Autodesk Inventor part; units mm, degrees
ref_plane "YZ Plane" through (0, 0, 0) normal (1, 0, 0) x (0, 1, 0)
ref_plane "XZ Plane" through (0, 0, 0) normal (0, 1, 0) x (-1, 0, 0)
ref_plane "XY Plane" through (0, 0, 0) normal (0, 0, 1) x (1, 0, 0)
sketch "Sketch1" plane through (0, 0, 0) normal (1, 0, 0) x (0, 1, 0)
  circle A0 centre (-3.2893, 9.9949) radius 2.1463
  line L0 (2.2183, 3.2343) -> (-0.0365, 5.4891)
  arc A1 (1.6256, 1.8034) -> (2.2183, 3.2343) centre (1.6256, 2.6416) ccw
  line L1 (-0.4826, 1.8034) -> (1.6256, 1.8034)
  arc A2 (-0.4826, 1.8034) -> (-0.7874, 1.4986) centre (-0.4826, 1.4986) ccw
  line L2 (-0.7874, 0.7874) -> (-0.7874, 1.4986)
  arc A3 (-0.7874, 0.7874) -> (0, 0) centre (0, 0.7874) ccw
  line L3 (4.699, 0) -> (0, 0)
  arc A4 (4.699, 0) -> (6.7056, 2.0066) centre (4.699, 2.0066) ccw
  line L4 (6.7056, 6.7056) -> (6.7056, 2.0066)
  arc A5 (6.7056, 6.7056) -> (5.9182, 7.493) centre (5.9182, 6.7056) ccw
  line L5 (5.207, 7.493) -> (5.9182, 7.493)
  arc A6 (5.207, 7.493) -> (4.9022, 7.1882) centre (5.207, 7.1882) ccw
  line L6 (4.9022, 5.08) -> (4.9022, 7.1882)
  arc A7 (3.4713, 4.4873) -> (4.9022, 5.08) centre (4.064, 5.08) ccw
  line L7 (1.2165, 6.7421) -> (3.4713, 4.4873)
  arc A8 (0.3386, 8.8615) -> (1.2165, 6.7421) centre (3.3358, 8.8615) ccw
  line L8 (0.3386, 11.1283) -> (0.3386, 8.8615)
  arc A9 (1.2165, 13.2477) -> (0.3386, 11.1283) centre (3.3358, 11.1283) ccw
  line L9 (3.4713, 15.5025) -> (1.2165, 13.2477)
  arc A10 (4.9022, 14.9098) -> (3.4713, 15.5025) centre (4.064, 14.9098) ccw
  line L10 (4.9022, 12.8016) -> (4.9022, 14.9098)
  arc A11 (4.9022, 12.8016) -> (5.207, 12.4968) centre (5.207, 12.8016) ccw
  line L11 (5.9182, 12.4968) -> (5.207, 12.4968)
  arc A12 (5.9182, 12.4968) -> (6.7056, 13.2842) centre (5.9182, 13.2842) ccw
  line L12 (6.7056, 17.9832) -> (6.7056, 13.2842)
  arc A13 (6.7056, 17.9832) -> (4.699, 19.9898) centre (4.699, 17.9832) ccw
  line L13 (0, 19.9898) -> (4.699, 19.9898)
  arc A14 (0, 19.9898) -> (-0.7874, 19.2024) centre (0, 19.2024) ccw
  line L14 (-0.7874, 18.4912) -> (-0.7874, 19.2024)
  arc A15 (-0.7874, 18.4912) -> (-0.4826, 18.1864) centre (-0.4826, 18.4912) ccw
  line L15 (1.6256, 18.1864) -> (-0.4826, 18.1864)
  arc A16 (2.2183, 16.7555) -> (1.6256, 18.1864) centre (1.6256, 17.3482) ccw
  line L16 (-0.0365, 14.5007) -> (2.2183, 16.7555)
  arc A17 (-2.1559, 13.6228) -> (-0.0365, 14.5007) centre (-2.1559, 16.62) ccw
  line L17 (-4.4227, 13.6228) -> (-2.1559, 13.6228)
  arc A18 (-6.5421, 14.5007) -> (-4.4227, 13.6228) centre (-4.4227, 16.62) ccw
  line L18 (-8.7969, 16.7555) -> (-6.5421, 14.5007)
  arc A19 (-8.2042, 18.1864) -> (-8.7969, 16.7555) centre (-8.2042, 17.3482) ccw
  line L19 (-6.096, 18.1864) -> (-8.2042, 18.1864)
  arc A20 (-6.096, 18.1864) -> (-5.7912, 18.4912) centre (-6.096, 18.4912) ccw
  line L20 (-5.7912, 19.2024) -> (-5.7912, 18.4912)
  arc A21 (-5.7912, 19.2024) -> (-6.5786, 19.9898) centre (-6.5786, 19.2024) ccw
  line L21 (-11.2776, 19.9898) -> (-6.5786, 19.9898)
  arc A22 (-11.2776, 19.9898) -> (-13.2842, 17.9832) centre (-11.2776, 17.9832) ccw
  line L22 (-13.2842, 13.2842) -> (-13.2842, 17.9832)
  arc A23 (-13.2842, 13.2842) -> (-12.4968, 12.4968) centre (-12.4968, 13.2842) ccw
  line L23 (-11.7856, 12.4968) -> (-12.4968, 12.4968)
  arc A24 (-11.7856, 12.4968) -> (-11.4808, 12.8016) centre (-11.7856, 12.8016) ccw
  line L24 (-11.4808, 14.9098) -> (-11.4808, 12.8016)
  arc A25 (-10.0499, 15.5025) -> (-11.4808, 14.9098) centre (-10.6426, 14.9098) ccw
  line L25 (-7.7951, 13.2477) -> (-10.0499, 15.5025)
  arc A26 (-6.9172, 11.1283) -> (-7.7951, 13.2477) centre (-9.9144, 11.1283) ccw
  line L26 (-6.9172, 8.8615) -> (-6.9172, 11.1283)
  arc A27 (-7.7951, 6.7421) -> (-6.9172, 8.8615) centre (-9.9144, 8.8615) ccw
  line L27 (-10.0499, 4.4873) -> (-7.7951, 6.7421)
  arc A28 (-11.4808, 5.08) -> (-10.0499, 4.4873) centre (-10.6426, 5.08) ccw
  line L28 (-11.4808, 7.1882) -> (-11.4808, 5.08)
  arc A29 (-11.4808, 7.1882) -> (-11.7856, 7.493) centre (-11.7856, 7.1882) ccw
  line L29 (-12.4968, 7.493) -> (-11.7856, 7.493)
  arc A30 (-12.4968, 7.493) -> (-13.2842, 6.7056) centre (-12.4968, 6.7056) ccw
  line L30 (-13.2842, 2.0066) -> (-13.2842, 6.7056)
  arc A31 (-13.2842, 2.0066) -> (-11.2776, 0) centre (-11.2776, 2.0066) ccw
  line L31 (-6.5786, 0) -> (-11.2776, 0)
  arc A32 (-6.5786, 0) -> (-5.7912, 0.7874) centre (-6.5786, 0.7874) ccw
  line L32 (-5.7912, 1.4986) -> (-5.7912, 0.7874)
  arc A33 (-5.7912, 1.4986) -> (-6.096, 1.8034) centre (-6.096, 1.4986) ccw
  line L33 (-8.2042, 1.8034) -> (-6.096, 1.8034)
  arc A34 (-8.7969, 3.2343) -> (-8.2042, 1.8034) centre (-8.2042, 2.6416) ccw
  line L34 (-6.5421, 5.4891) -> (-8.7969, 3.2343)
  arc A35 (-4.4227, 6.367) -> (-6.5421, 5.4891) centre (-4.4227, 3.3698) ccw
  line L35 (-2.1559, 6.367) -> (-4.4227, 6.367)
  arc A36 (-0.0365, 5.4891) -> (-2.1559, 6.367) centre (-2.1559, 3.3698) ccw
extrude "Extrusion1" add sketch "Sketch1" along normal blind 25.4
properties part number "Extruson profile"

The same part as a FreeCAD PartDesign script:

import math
import FreeCAD as App
import Part
import Sketcher
Q = App.Units.Quantity

doc = App.newDocument("Part")
body = doc.addObject("PartDesign::Body", "Body")

sketch1 = body.newObject("Sketcher::SketchObject", "Sketch")
sketch1.AttachmentSupport = (doc.getObject("YZ_Plane"), [""])
sketch1.MapMode = "FlatFace"
sketch1.addGeometry(Part.LineSegment(App.Vector(-0.04, 5.49, 0), App.Vector(2.22, 3.23, 0)), False)
sketch1.addGeometry(Part.ArcOfCircle(Part.Circle(App.Vector(1.63, 2.64, 0), App.Vector(0, 0, 1), 0.84), math.radians(-90), math.radians(45)), False)
sketch1.addGeometry(Part.LineSegment(App.Vector(1.63, 1.8, 0), App.Vector(-0.48, 1.8, 0)), False)
sketch1.addGeometry(Part.ArcOfCircle(Part.Circle(App.Vector(-0.48, 1.5, 0), App.Vector(0, 0, 1), 0.3), math.radians(90), math.radians(180)), False)
sketch1.addGeometry(Part.LineSegment(App.Vector(-0.79, 1.5, 0), App.Vector(-0.79, 0.79, 0)), False)
sketch1.addGeometry(Part.ArcOfCircle(Part.Circle(App.Vector(0, 0.79, 0), App.Vector(0, 0, 1), 0.79), math.radians(180), math.radians(270)), False)
sketch1.addGeometry(Part.LineSegment(App.Vector(0, 0, 0), App.Vector(4.7, 0, 0)), False)
sketch1.addGeometry(Part.ArcOfCircle(Part.Circle(App.Vector(4.7, 2.01, 0), App.Vector(0, 0, 1), 2.01), math.radians(-90), math.radians(0)), False)
sketch1.addGeometry(Part.LineSegment(App.Vector(6.71, 2.01, 0), App.Vector(6.71, 6.71, 0)), False)
sketch1.addGeometry(Part.ArcOfCircle(Part.Circle(App.Vector(5.92, 6.71, 0), App.Vector(0, 0, 1), 0.79), math.radians(0), math.radians(90)), False)
sketch1.addGeometry(Part.LineSegment(App.Vector(5.92, 7.49, 0), App.Vector(5.21, 7.49, 0)), False)
sketch1.addGeometry(Part.ArcOfCircle(Part.Circle(App.Vector(5.21, 7.19, 0), App.Vector(0, 0, 1), 0.3), math.radians(90), math.radians(180)), False)
sketch1.addGeometry(Part.LineSegment(App.Vector(4.9, 7.19, 0), App.Vector(4.9, 5.08, 0)), False)
sketch1.addGeometry(Part.ArcOfCircle(Part.Circle(App.Vector(4.06, 5.08, 0), App.Vector(0, 0, 1), 0.84), math.radians(-135), math.radians(0)), False)
sketch1.addGeometry(Part.LineSegment(App.Vector(3.47, 4.49, 0), App.Vector(1.22, 6.74, 0)), False)
sketch1.addGeometry(Part.ArcOfCircle(Part.Circle(App.Vector(3.34, 8.86, 0), App.Vector(0, 0, 1), 3), math.radians(180), math.radians(225)), False)
sketch1.addGeometry(Part.LineSegment(App.Vector(0.34, 8.86, 0), App.Vector(0.34, 11.13, 0)), False)
sketch1.addGeometry(Part.ArcOfCircle(Part.Circle(App.Vector(3.34, 11.13, 0), App.Vector(0, 0, 1), 3), math.radians(135), math.radians(180)), False)
sketch1.addGeometry(Part.LineSegment(App.Vector(1.22, 13.25, 0), App.Vector(3.47, 15.5, 0)), False)
sketch1.addGeometry(Part.ArcOfCircle(Part.Circle(App.Vector(4.06, 14.91, 0), App.Vector(0, 0, 1), 0.84), math.radians(0), math.radians(135)), False)
sketch1.addGeometry(Part.LineSegment(App.Vector(4.9, 14.91, 0), App.Vector(4.9, 12.8, 0)), False)
sketch1.addGeometry(Part.ArcOfCircle(Part.Circle(App.Vector(5.21, 12.8, 0), App.Vector(0, 0, 1), 0.3), math.radians(180), math.radians(270)), False)
sketch1.addGeometry(Part.LineSegment(App.Vector(5.21, 12.5, 0), App.Vector(5.92, 12.5, 0)), False)
sketch1.addGeometry(Part.ArcOfCircle(Part.Circle(App.Vector(5.92, 13.28, 0), App.Vector(0, 0, 1), 0.79), math.radians(-90), math.radians(0)), False)
sketch1.addGeometry(Part.LineSegment(App.Vector(6.71, 13.28, 0), App.Vector(6.71, 17.98, 0)), False)
sketch1.addGeometry(Part.ArcOfCircle(Part.Circle(App.Vector(4.7, 17.98, 0), App.Vector(0, 0, 1), 2.01), math.radians(0), math.radians(90)), False)
sketch1.addGeometry(Part.LineSegment(App.Vector(4.7, 19.99, 0), App.Vector(0, 19.99, 0)), False)
sketch1.addGeometry(Part.ArcOfCircle(Part.Circle(App.Vector(0, 19.2, 0), App.Vector(0, 0, 1), 0.79), math.radians(90), math.radians(180)), False)
sketch1.addGeometry(Part.LineSegment(App.Vector(-0.79, 19.2, 0), App.Vector(-0.79, 18.49, 0)), False)
sketch1.addGeometry(Part.ArcOfCircle(Part.Circle(App.Vector(-0.48, 18.49, 0), App.Vector(0, 0, 1), 0.3), math.radians(180), math.radians(270)), False)
sketch1.addGeometry(Part.LineSegment(App.Vector(-0.48, 18.19, 0), App.Vector(1.63, 18.19, 0)), False)
sketch1.addGeometry(Part.ArcOfCircle(Part.Circle(App.Vector(1.63, 17.35, 0), App.Vector(0, 0, 1), 0.84), math.radians(-45), math.radians(90)), False)
sketch1.addGeometry(Part.LineSegment(App.Vector(2.22, 16.76, 0), App.Vector(-0.04, 14.5, 0)), False)
sketch1.addGeometry(Part.ArcOfCircle(Part.Circle(App.Vector(-2.16, 16.62, 0), App.Vector(0, 0, 1), 3), math.radians(-90), math.radians(-45)), False)
sketch1.addGeometry(Part.LineSegment(App.Vector(-2.16, 13.62, 0), App.Vector(-4.42, 13.62, 0)), False)
sketch1.addGeometry(Part.ArcOfCircle(Part.Circle(App.Vector(-4.42, 16.62, 0), App.Vector(0, 0, 1), 3), math.radians(-135), math.radians(-90)), False)
sketch1.addGeometry(Part.LineSegment(App.Vector(-6.54, 14.5, 0), App.Vector(-8.8, 16.76, 0)), False)
sketch1.addGeometry(Part.ArcOfCircle(Part.Circle(App.Vector(-8.2, 17.35, 0), App.Vector(0, 0, 1), 0.84), math.radians(90), math.radians(225)), False)
sketch1.addGeometry(Part.LineSegment(App.Vector(-8.2, 18.19, 0), App.Vector(-6.1, 18.19, 0)), False)
sketch1.addGeometry(Part.ArcOfCircle(Part.Circle(App.Vector(-6.1, 18.49, 0), App.Vector(0, 0, 1), 0.3), math.radians(-90), math.radians(0)), False)
sketch1.addGeometry(Part.LineSegment(App.Vector(-5.79, 18.49, 0), App.Vector(-5.79, 19.2, 0)), False)
sketch1.addGeometry(Part.ArcOfCircle(Part.Circle(App.Vector(-6.58, 19.2, 0), App.Vector(0, 0, 1), 0.79), math.radians(0), math.radians(90)), False)
sketch1.addGeometry(Part.LineSegment(App.Vector(-6.58, 19.99, 0), App.Vector(-11.28, 19.99, 0)), False)
sketch1.addGeometry(Part.ArcOfCircle(Part.Circle(App.Vector(-11.28, 17.98, 0), App.Vector(0, 0, 1), 2.01), math.radians(90), math.radians(180)), False)
sketch1.addGeometry(Part.LineSegment(App.Vector(-13.28, 17.98, 0), App.Vector(-13.28, 13.28, 0)), False)
sketch1.addGeometry(Part.ArcOfCircle(Part.Circle(App.Vector(-12.5, 13.28, 0), App.Vector(0, 0, 1), 0.79), math.radians(180), math.radians(270)), False)
sketch1.addGeometry(Part.LineSegment(App.Vector(-12.5, 12.5, 0), App.Vector(-11.79, 12.5, 0)), False)
sketch1.addGeometry(Part.ArcOfCircle(Part.Circle(App.Vector(-11.79, 12.8, 0), App.Vector(0, 0, 1), 0.3), math.radians(-90), math.radians(0)), False)
sketch1.addGeometry(Part.LineSegment(App.Vector(-11.48, 12.8, 0), App.Vector(-11.48, 14.91, 0)), False)
sketch1.addGeometry(Part.ArcOfCircle(Part.Circle(App.Vector(-10.64, 14.91, 0), App.Vector(0, 0, 1), 0.84), math.radians(45), math.radians(180)), False)
sketch1.addGeometry(Part.LineSegment(App.Vector(-10.05, 15.5, 0), App.Vector(-7.8, 13.25, 0)), False)
sketch1.addGeometry(Part.ArcOfCircle(Part.Circle(App.Vector(-9.91, 11.13, 0), App.Vector(0, 0, 1), 3), math.radians(0), math.radians(45)), False)
sketch1.addGeometry(Part.LineSegment(App.Vector(-6.92, 11.13, 0), App.Vector(-6.92, 8.86, 0)), False)
sketch1.addGeometry(Part.ArcOfCircle(Part.Circle(App.Vector(-9.91, 8.86, 0), App.Vector(0, 0, 1), 3), math.radians(-45), math.radians(0)), False)
sketch1.addGeometry(Part.LineSegment(App.Vector(-7.8, 6.74, 0), App.Vector(-10.05, 4.49, 0)), False)
sketch1.addGeometry(Part.ArcOfCircle(Part.Circle(App.Vector(-10.64, 5.08, 0), App.Vector(0, 0, 1), 0.84), math.radians(180), math.radians(315)), False)
sketch1.addGeometry(Part.LineSegment(App.Vector(-11.48, 5.08, 0), App.Vector(-11.48, 7.19, 0)), False)
sketch1.addGeometry(Part.ArcOfCircle(Part.Circle(App.Vector(-11.79, 7.19, 0), App.Vector(0, 0, 1), 0.3), math.radians(0), math.radians(90)), False)
sketch1.addGeometry(Part.LineSegment(App.Vector(-11.79, 7.49, 0), App.Vector(-12.5, 7.49, 0)), False)
sketch1.addGeometry(Part.ArcOfCircle(Part.Circle(App.Vector(-12.5, 6.71, 0), App.Vector(0, 0, 1), 0.79), math.radians(90), math.radians(180)), False)
sketch1.addGeometry(Part.LineSegment(App.Vector(-13.28, 6.71, 0), App.Vector(-13.28, 2.01, 0)), False)
sketch1.addGeometry(Part.ArcOfCircle(Part.Circle(App.Vector(-11.28, 2.01, 0), App.Vector(0, 0, 1), 2.01), math.radians(180), math.radians(270)), False)
sketch1.addGeometry(Part.LineSegment(App.Vector(-11.28, 0, 0), App.Vector(-6.58, 0, 0)), False)
sketch1.addGeometry(Part.ArcOfCircle(Part.Circle(App.Vector(-6.58, 0.79, 0), App.Vector(0, 0, 1), 0.79), math.radians(-90), math.radians(0)), False)
sketch1.addGeometry(Part.LineSegment(App.Vector(-5.79, 0.79, 0), App.Vector(-5.79, 1.5, 0)), False)
sketch1.addGeometry(Part.ArcOfCircle(Part.Circle(App.Vector(-6.1, 1.5, 0), App.Vector(0, 0, 1), 0.3), math.radians(0), math.radians(90)), False)
sketch1.addGeometry(Part.LineSegment(App.Vector(-6.1, 1.8, 0), App.Vector(-8.2, 1.8, 0)), False)
sketch1.addGeometry(Part.ArcOfCircle(Part.Circle(App.Vector(-8.2, 2.64, 0), App.Vector(0, 0, 1), 0.84), math.radians(135), math.radians(270)), False)
sketch1.addGeometry(Part.LineSegment(App.Vector(-8.8, 3.23, 0), App.Vector(-6.54, 5.49, 0)), False)
sketch1.addGeometry(Part.ArcOfCircle(Part.Circle(App.Vector(-4.42, 3.37, 0), App.Vector(0, 0, 1), 3), math.radians(90), math.radians(135)), False)
sketch1.addGeometry(Part.LineSegment(App.Vector(-4.42, 6.37, 0), App.Vector(-2.16, 6.37, 0)), False)
sketch1.addGeometry(Part.ArcOfCircle(Part.Circle(App.Vector(-2.16, 3.37, 0), App.Vector(0, 0, 1), 3), math.radians(45), math.radians(90)), False)
sketch1.addGeometry(Part.Circle(App.Vector(-3.29, 9.99, 0), App.Vector(0, 0, 1), 2.15), False)
sketch1.addConstraint(Sketcher.Constraint("Tangent", 0, 2, 1, 2))
sketch1.addConstraint(Sketcher.Constraint("Tangent", 1, 1, 2, 1))
sketch1.addConstraint(Sketcher.Constraint("Tangent", 2, 2, 3, 1))
sketch1.addConstraint(Sketcher.Constraint("Tangent", 3, 2, 4, 1))
sketch1.addConstraint(Sketcher.Constraint("Tangent", 4, 2, 5, 1))
sketch1.addConstraint(Sketcher.Constraint("Tangent", 5, 2, 6, 1))
sketch1.addConstraint(Sketcher.Constraint("Tangent", 6, 2, 7, 1))
sketch1.addConstraint(Sketcher.Constraint("Tangent", 7, 2, 8, 1))
sketch1.addConstraint(Sketcher.Constraint("Tangent", 8, 2, 9, 1))
sketch1.addConstraint(Sketcher.Constraint("Tangent", 9, 2, 10, 1))
sketch1.addConstraint(Sketcher.Constraint("Tangent", 10, 2, 11, 1))
sketch1.addConstraint(Sketcher.Constraint("Tangent", 11, 2, 12, 1))
sketch1.addConstraint(Sketcher.Constraint("Tangent", 12, 2, 13, 2))
sketch1.addConstraint(Sketcher.Constraint("Tangent", 13, 1, 14, 1))
sketch1.addConstraint(Sketcher.Constraint("Tangent", 14, 2, 15, 2))
sketch1.addConstraint(Sketcher.Constraint("Tangent", 15, 1, 16, 1))
sketch1.addConstraint(Sketcher.Constraint("Tangent", 16, 2, 17, 2))
sketch1.addConstraint(Sketcher.Constraint("Tangent", 17, 1, 18, 1))
sketch1.addConstraint(Sketcher.Constraint("Tangent", 18, 2, 19, 2))
sketch1.addConstraint(Sketcher.Constraint("Tangent", 19, 1, 20, 1))
sketch1.addConstraint(Sketcher.Constraint("Tangent", 20, 2, 21, 1))
sketch1.addConstraint(Sketcher.Constraint("Tangent", 21, 2, 22, 1))
sketch1.addConstraint(Sketcher.Constraint("Tangent", 22, 2, 23, 1))
sketch1.addConstraint(Sketcher.Constraint("Tangent", 23, 2, 24, 1))
sketch1.addConstraint(Sketcher.Constraint("Tangent", 24, 2, 25, 1))
sketch1.addConstraint(Sketcher.Constraint("Tangent", 25, 2, 26, 1))
sketch1.addConstraint(Sketcher.Constraint("Tangent", 26, 2, 27, 1))
sketch1.addConstraint(Sketcher.Constraint("Tangent", 27, 2, 28, 1))
sketch1.addConstraint(Sketcher.Constraint("Tangent", 28, 2, 29, 1))
sketch1.addConstraint(Sketcher.Constraint("Tangent", 29, 2, 30, 1))
sketch1.addConstraint(Sketcher.Constraint("Tangent", 30, 2, 31, 2))
sketch1.addConstraint(Sketcher.Constraint("Tangent", 31, 1, 32, 1))
sketch1.addConstraint(Sketcher.Constraint("Tangent", 32, 2, 33, 2))
sketch1.addConstraint(Sketcher.Constraint("Tangent", 33, 1, 34, 1))
sketch1.addConstraint(Sketcher.Constraint("Tangent", 34, 2, 35, 2))
sketch1.addConstraint(Sketcher.Constraint("Tangent", 35, 1, 36, 1))
sketch1.addConstraint(Sketcher.Constraint("Tangent", 36, 2, 37, 2))
sketch1.addConstraint(Sketcher.Constraint("Tangent", 37, 1, 38, 1))
sketch1.addConstraint(Sketcher.Constraint("Tangent", 38, 2, 39, 1))
sketch1.addConstraint(Sketcher.Constraint("Tangent", 39, 2, 40, 1))
sketch1.addConstraint(Sketcher.Constraint("Tangent", 40, 2, 41, 1))
sketch1.addConstraint(Sketcher.Constraint("Tangent", 41, 2, 42, 1))
sketch1.addConstraint(Sketcher.Constraint("Tangent", 42, 2, 43, 1))
sketch1.addConstraint(Sketcher.Constraint("Tangent", 43, 2, 44, 1))
sketch1.addConstraint(Sketcher.Constraint("Tangent", 44, 2, 45, 1))
sketch1.addConstraint(Sketcher.Constraint("Tangent", 45, 2, 46, 1))
sketch1.addConstraint(Sketcher.Constraint("Tangent", 46, 2, 47, 1))
sketch1.addConstraint(Sketcher.Constraint("Tangent", 47, 2, 48, 1))
sketch1.addConstraint(Sketcher.Constraint("Tangent", 48, 2, 49, 2))
sketch1.addConstraint(Sketcher.Constraint("Tangent", 49, 1, 50, 1))
sketch1.addConstraint(Sketcher.Constraint("Tangent", 50, 2, 51, 2))
sketch1.addConstraint(Sketcher.Constraint("Tangent", 51, 1, 52, 1))
sketch1.addConstraint(Sketcher.Constraint("Tangent", 52, 2, 53, 2))
sketch1.addConstraint(Sketcher.Constraint("Tangent", 53, 1, 54, 1))
sketch1.addConstraint(Sketcher.Constraint("Tangent", 54, 2, 55, 2))
sketch1.addConstraint(Sketcher.Constraint("Tangent", 55, 1, 56, 1))
sketch1.addConstraint(Sketcher.Constraint("Tangent", 56, 2, 57, 1))
sketch1.addConstraint(Sketcher.Constraint("Tangent", 57, 2, 58, 1))
sketch1.addConstraint(Sketcher.Constraint("Tangent", 58, 2, 59, 1))
sketch1.addConstraint(Sketcher.Constraint("Tangent", 59, 2, 60, 1))
sketch1.addConstraint(Sketcher.Constraint("Tangent", 60, 2, 61, 1))
sketch1.addConstraint(Sketcher.Constraint("Tangent", 61, 2, 62, 1))
sketch1.addConstraint(Sketcher.Constraint("Tangent", 62, 2, 63, 1))
sketch1.addConstraint(Sketcher.Constraint("Tangent", 63, 2, 64, 1))
sketch1.addConstraint(Sketcher.Constraint("Tangent", 64, 2, 65, 1))
sketch1.addConstraint(Sketcher.Constraint("Tangent", 65, 2, 66, 1))
sketch1.addConstraint(Sketcher.Constraint("Tangent", 66, 2, 67, 2))
sketch1.addConstraint(Sketcher.Constraint("Tangent", 67, 1, 68, 1))
sketch1.addConstraint(Sketcher.Constraint("Tangent", 68, 2, 69, 2))
sketch1.addConstraint(Sketcher.Constraint("Tangent", 69, 1, 70, 1))
sketch1.addConstraint(Sketcher.Constraint("Tangent", 70, 2, 71, 2))
sketch1.addConstraint(Sketcher.Constraint("Tangent", 71, 1, 0, 1))
sketch1.addConstraint(Sketcher.Constraint("Horizontal", 2))
sketch1.addConstraint(Sketcher.Constraint("Vertical", 4))
sketch1.addConstraint(Sketcher.Constraint("Horizontal", 6))
sketch1.addConstraint(Sketcher.Constraint("Vertical", 8))
sketch1.addConstraint(Sketcher.Constraint("Horizontal", 10))
sketch1.addConstraint(Sketcher.Constraint("Vertical", 12))
sketch1.addConstraint(Sketcher.Constraint("Vertical", 16))
sketch1.addConstraint(Sketcher.Constraint("Vertical", 20))
sketch1.addConstraint(Sketcher.Constraint("Horizontal", 22))
sketch1.addConstraint(Sketcher.Constraint("Vertical", 24))
sketch1.addConstraint(Sketcher.Constraint("Horizontal", 26))
sketch1.addConstraint(Sketcher.Constraint("Vertical", 28))
sketch1.addConstraint(Sketcher.Constraint("Horizontal", 30))
sketch1.addConstraint(Sketcher.Constraint("Horizontal", 34))
sketch1.addConstraint(Sketcher.Constraint("Horizontal", 38))
sketch1.addConstraint(Sketcher.Constraint("Vertical", 40))
sketch1.addConstraint(Sketcher.Constraint("Horizontal", 42))
sketch1.addConstraint(Sketcher.Constraint("Vertical", 44))
sketch1.addConstraint(Sketcher.Constraint("Horizontal", 46))
sketch1.addConstraint(Sketcher.Constraint("Vertical", 48))
sketch1.addConstraint(Sketcher.Constraint("Vertical", 52))
sketch1.addConstraint(Sketcher.Constraint("Vertical", 56))
sketch1.addConstraint(Sketcher.Constraint("Horizontal", 58))
sketch1.addConstraint(Sketcher.Constraint("Vertical", 60))
sketch1.addConstraint(Sketcher.Constraint("Horizontal", 62))
sketch1.addConstraint(Sketcher.Constraint("Vertical", 64))
sketch1.addConstraint(Sketcher.Constraint("Horizontal", 66))
sketch1.addConstraint(Sketcher.Constraint("Horizontal", 70))
sketch1.addConstraint(Sketcher.Constraint("Coincident", 5, 2, -1, 1))
sketch1.addConstraint(Sketcher.Constraint("Equal", 5, 9))
sketch1.addConstraint(Sketcher.Constraint("Equal", 3, 11))
sketch1.addConstraint(Sketcher.Constraint("Equal", 1, 13))
sketch1.addConstraint(Sketcher.Constraint("Equal", 15, 17))
sketch1.addConstraint(Sketcher.Constraint("Equal", 13, 19))
sketch1.addConstraint(Sketcher.Constraint("Equal", 11, 21))
sketch1.addConstraint(Sketcher.Constraint("Equal", 9, 23))
sketch1.addConstraint(Sketcher.Constraint("Equal", 7, 25))
sketch1.addConstraint(Sketcher.Constraint("Equal", 23, 27))
sketch1.addConstraint(Sketcher.Constraint("Equal", 21, 29))
sketch1.addConstraint(Sketcher.Constraint("Equal", 19, 31))
sketch1.addConstraint(Sketcher.Constraint("Equal", 17, 33))
sketch1.addConstraint(Sketcher.Constraint("Equal", 33, 35))
sketch1.addConstraint(Sketcher.Constraint("Equal", 31, 37))
sketch1.addConstraint(Sketcher.Constraint("Equal", 29, 39))
sketch1.addConstraint(Sketcher.Constraint("Equal", 27, 41))
sketch1.addConstraint(Sketcher.Constraint("Equal", 25, 43))
sketch1.addConstraint(Sketcher.Constraint("Equal", 41, 45))
sketch1.addConstraint(Sketcher.Constraint("Equal", 39, 47))
sketch1.addConstraint(Sketcher.Constraint("Equal", 37, 49))
sketch1.addConstraint(Sketcher.Constraint("Equal", 35, 51))
sketch1.addConstraint(Sketcher.Constraint("Equal", 51, 53))
sketch1.addConstraint(Sketcher.Constraint("Equal", 49, 55))
sketch1.addConstraint(Sketcher.Constraint("Equal", 47, 57))
sketch1.addConstraint(Sketcher.Constraint("Equal", 45, 59))
sketch1.addConstraint(Sketcher.Constraint("Equal", 43, 61))
sketch1.addConstraint(Sketcher.Constraint("Equal", 59, 63))
sketch1.addConstraint(Sketcher.Constraint("Equal", 57, 65))
sketch1.addConstraint(Sketcher.Constraint("Equal", 55, 67))
sketch1.addConstraint(Sketcher.Constraint("Equal", 53, 69))
sketch1.addConstraint(Sketcher.Constraint("Equal", 69, 71))
sketch1.addConstraint(Sketcher.Constraint("PointOnObject", 27, 3, -2))
sketch1.addConstraint(Sketcher.Constraint("PointOnObject", 61, 2, -1))
sketch1.addConstraint(Sketcher.Constraint("Parallel", 0, 14))
sketch1.addConstraint(Sketcher.Constraint("Perpendicular", 14, 18))
sketch1.addConstraint(Sketcher.Constraint("Parallel", 18, 32))
sketch1.addConstraint(Sketcher.Constraint("Perpendicular", 32, 36))
sketch1.addConstraint(Sketcher.Constraint("Parallel", 36, 50))
sketch1.addConstraint(Sketcher.Constraint("Perpendicular", 50, 54))
sketch1.addConstraint(Sketcher.Constraint("Parallel", 54, 68))
sketch1.addConstraint(Sketcher.Constraint("Horizontal", 31, 3, 37, 3))
sketch1.addConstraint(Sketcher.Constraint("Horizontal", 27, 3, 41, 3))
sketch1.addConstraint(Sketcher.Constraint("Horizontal", 23, 3, 45, 3))
sketch1.addConstraint(Sketcher.Constraint("Horizontal", 19, 3, 49, 3))
sketch1.addConstraint(Sketcher.Constraint("Horizontal", 17, 3, 51, 3))
sketch1.addConstraint(Sketcher.Constraint("Horizontal", 15, 3, 53, 3))
sketch1.addConstraint(Sketcher.Constraint("Horizontal", 13, 3, 55, 3))
sketch1.addConstraint(Sketcher.Constraint("Horizontal", 11, 3, 57, 3))
sketch1.addConstraint(Sketcher.Constraint("Horizontal", 3, 3, 65, 3))
sketch1.addConstraint(Sketcher.Constraint("Horizontal", 32, 2, 35, 1))
sketch1.addConstraint(Sketcher.Constraint("Vertical", 13, 3, 19, 3))
sketch1.addConstraint(Sketcher.Constraint("Vertical", 9, 3, 23, 3))
sketch1.addConstraint(Sketcher.Constraint("Vertical", 1, 3, 31, 3))
sketch1.addConstraint(Sketcher.Constraint("Vertical", 45, 3, 59, 3))
sketch1.addConstraint(Sketcher.Constraint("Vertical", 41, 3, 63, 3))
sketch1.addConstraint(Sketcher.Constraint("Vertical", 37, 3, 67, 3))
sketch1.addConstraint(Sketcher.Constraint("Vertical", 35, 3, 69, 3))
sketch1.addConstraint(Sketcher.Constraint("Equal", 30, 38))
sketch1.addConstraint(Sketcher.Constraint("Equal", 26, 42))
sketch1.addConstraint(Sketcher.Constraint("Equal", 22, 46))
sketch1.addConstraint(Sketcher.Constraint("Equal", 58, 4))
sketch1.addConstraint(Sketcher.Constraint("Equal", 62, 8))
sketch1.addConstraint(Sketcher.Constraint("Equal", 66, 12))
sketch1.addConstraint(Sketcher.Constraint("Equal", 70, 16))
sketch1.addConstraint(Sketcher.Constraint("Equal", 12, 20))
sketch1.addConstraint(Sketcher.Constraint("Equal", 8, 24))
sketch1.addConstraint(Sketcher.Constraint("Equal", 4, 28))
sketch1.addConstraint(Sketcher.Constraint("Equal", 0, 14))
sketch1.addConstraint(Sketcher.Constraint("Diameter", 72, Q("0.169 in")))
sketch1.addConstraint(Sketcher.Constraint("Radius", 1, Q("0.033 in")))
sketch1.addConstraint(Sketcher.Constraint("Radius", 3, Q("0.012 in")))
sketch1.addConstraint(Sketcher.Constraint("Radius", 5, Q("0.031 in")))
sketch1.addConstraint(Sketcher.Constraint("Radius", 7, Q("0.079 in")))
sketch1.addConstraint(Sketcher.Constraint("Radius", 15, Q("0.118 in")))
sketch1.addConstraint(Sketcher.Constraint("DistanceY", -1, 1, 13, 3, Q("0.2 in")))
sketch1.addConstraint(Sketcher.Constraint("DistanceX", 2, 2, 2, 1, Q("0.083 in")))
sketch1.addConstraint(Sketcher.Constraint("DistanceX", 10, 2, 10, 1, Q("0.028 in")))
sketch1.addConstraint(Sketcher.Constraint("DistanceX", 39, 3, -1, 1, Q("0.24 in")))
sketch1.addConstraint(Sketcher.Constraint("DistanceX", 34, 2, 34, 1, Q("2.2668 mm")))
sketch1.addConstraint(Sketcher.Constraint("DistanceX", 72, 3, -1, 1, Q("0.1295 in")))
sketch1.addConstraint(Sketcher.Constraint("DistanceY", -1, 1, 72, 3, Q("0.3935 in")))
pad1 = body.newObject("PartDesign::Pad", "Pad")
pad1.Profile = sketch1
pad1.Length = Q("1 in")

doc.recompute()
